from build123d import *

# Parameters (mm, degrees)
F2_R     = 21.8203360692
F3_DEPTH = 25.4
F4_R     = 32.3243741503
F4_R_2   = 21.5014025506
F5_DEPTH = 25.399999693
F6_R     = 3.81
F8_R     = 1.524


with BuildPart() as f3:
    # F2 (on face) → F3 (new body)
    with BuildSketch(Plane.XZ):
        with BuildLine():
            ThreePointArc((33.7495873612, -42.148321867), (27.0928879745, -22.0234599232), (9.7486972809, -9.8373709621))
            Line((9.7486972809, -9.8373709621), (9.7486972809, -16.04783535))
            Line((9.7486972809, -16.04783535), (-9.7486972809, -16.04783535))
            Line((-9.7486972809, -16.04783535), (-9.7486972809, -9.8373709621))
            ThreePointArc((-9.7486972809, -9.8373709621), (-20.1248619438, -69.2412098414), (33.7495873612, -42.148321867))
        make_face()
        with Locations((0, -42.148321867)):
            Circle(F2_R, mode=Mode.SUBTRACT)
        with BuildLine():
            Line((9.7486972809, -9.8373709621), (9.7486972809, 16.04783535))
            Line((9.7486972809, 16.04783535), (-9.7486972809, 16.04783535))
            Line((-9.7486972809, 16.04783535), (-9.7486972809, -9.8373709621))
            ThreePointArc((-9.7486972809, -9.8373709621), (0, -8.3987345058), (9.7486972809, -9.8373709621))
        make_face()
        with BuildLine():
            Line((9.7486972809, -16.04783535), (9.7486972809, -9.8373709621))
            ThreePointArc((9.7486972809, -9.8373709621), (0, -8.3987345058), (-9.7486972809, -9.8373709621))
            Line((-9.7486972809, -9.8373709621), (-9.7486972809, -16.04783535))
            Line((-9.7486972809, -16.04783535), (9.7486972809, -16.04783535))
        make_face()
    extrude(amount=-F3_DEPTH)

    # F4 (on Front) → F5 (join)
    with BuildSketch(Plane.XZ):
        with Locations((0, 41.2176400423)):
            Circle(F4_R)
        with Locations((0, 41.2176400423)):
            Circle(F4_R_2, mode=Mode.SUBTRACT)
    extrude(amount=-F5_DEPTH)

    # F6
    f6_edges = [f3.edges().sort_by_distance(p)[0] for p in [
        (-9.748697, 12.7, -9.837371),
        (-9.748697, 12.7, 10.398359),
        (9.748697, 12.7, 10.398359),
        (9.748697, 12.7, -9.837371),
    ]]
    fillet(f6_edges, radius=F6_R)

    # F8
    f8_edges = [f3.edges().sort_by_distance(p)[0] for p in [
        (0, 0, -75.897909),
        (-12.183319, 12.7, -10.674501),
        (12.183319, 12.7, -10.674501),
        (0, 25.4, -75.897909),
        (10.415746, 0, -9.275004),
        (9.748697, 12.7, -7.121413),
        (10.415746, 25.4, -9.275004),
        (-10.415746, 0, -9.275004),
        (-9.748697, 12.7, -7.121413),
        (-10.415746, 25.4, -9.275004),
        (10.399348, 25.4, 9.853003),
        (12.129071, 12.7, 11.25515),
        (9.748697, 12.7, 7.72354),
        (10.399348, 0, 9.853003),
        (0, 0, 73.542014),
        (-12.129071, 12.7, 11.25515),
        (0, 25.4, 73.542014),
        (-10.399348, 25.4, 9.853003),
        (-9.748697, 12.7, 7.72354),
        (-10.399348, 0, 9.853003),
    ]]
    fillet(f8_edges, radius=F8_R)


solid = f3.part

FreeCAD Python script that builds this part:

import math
import FreeCAD as App
import Part
import Sketcher

V = App.Vector
Q = App.Units.Quantity


def edges_at(feature, points):
    """Names of the edges that pass closest to the given points."""
    edges = feature.Shape.Edges
    near = lambda p: min(range(len(edges)), key=lambda i: edges[i].distToShape(Part.Vertex(*p))[0])
    return sorted({f"Edge{near(p) + 1}" for p in points})

doc = App.newDocument("Part")
body = doc.addObject("PartDesign::Body", "Body")

# Sketch on XZ plane
sketch1 = body.newObject("Sketcher::SketchObject", "Sketch")
sketch1.AttachmentSupport = (doc.getObject("XZ_Plane"), [""])
sketch1.MapMode = "FlatFace"
sketch1.addGeometry([
    Part.ArcOfCircle(Part.Circle(V(0, -42, 0), V(0, 0, 1), 34), math.radians(0), math.radians(73)),  # 0
    Part.LineSegment(V(10, -10, 0), V(10, 16, 0)),  # 1
    Part.LineSegment(V(10, 16, 0), V(-10, 16, 0)),  # 2
    Part.LineSegment(V(-10, 16, 0), V(-10, -10, 0)),  # 3
    Part.ArcOfCircle(Part.Circle(V(0, -42, 0), V(0, 0, 1), 34), math.radians(107), math.radians(360)),  # 4
    Part.Circle(V(0, -42, 0), V(0, 0, 1), 22),  # 5
], False)
sketch1.addConstraint([
    Sketcher.Constraint("Coincident", 0, 2, 1, 1),
    Sketcher.Constraint("Coincident", 1, 2, 2, 1),
    Sketcher.Constraint("Coincident", 2, 2, 3, 1),
    Sketcher.Constraint("Coincident", 3, 2, 4, 1),
    Sketcher.Constraint("Tangent", 4, 2, 0, 1),
    Sketcher.Constraint("Vertical", 1),
    Sketcher.Constraint("Horizontal", 2),
    Sketcher.Constraint("Vertical", 3),
    Sketcher.Constraint("Coincident", 5, 3, 0, 3),
    Sketcher.Constraint("Equal", 0, 4),
    Sketcher.Constraint("Symmetric", 0, 2, 3, 2, -2),
    Sketcher.Constraint("Horizontal", 5, 3, 4, 2),
    Sketcher.Constraint("Diameter", 5, 43.640672),
    Sketcher.Constraint("Radius", 0, 33.749587),
    Sketcher.Constraint("DistanceX", 2, 2, 2, 1, 19.497395),
    Sketcher.Constraint("DistanceY", 1, 1, 1, 2, 25.885206),
    Sketcher.Constraint("DistanceY", 0, 3, -1, 1, 42.148322),
])
pad1 = body.newObject("PartDesign::Pad", "Pad")
pad1.Profile = sketch1
pad1.Length = Q("1 in")
pad1.Reversed = True

# Sketch on XZ plane
sketch2 = body.newObject("Sketcher::SketchObject", "Sketch001")
sketch2.AttachmentSupport = (doc.getObject("XZ_Plane"), [""])
sketch2.MapMode = "FlatFace"
sketch2.addGeometry([
    Part.Circle(V(0, 41, 0), V(0, 0, 1), 32),
    Part.Circle(V(0, 41, 0), V(0, 0, 1), 22),
], False)
sketch2.addConstraint([
    Sketcher.Constraint("Coincident", 1, 3, 0, 3),
    Sketcher.Constraint("PointOnObject", 0, 3, -2),
    Sketcher.Constraint("Diameter", 0, 64.648748),
    Sketcher.Constraint("Diameter", 1, 43.002805),
    Sketcher.Constraint("DistanceY", -1, 1, 0, 3, 41.21764),
])
pad2 = body.newObject("PartDesign::Pad", "Pad001")
pad2.Profile = sketch2
pad2.Length = Q("1 in")
pad2.Reversed = True
doc.recompute()

fillet = body.newObject("PartDesign::Fillet", "Fillet")
fillet.Base = (pad2, edges_at(pad2, [
    (-9.749, 12.7, -9.837),
    (-9.749, 12.7, 10.398),
    (9.749, 12.7, 10.398),
    (9.749, 12.7, -9.837),
]))
fillet.Radius = Q("0.15 in")
doc.recompute()

fillet2 = body.newObject("PartDesign::Fillet", "Fillet001")
fillet2.Base = (fillet, edges_at(fillet, [
    (-19.077, 0, -69.989),
    (-12.183, 12.7, -10.675),
    (12.183, 12.7, -10.675),
    (-19.077, 25.4, -69.989),
    (10.416, 0, -9.275),
    (9.749, 12.7, -7.121),
    (10.416, 25.4, -9.275),
    (-10.416, 0, -9.275),
    (-9.749, 12.7, -7.121),
    (-10.416, 25.4, -9.275),
    (10.399, 25.4, 9.853),
    (12.129, 12.7, 11.255),
    (9.749, 12.7, 7.724),
    (10.399, 0, 9.853),
    (0, 0, 73.542),
    (-12.129, 12.7, 11.255),
    (0, 25.4, 73.542),
    (-10.399, 25.4, 9.853),
    (-9.749, 12.7, 7.724),
    (-10.399, 0, 9.853),
]))
fillet2.Radius = Q("0.06 in")

doc.recompute()
